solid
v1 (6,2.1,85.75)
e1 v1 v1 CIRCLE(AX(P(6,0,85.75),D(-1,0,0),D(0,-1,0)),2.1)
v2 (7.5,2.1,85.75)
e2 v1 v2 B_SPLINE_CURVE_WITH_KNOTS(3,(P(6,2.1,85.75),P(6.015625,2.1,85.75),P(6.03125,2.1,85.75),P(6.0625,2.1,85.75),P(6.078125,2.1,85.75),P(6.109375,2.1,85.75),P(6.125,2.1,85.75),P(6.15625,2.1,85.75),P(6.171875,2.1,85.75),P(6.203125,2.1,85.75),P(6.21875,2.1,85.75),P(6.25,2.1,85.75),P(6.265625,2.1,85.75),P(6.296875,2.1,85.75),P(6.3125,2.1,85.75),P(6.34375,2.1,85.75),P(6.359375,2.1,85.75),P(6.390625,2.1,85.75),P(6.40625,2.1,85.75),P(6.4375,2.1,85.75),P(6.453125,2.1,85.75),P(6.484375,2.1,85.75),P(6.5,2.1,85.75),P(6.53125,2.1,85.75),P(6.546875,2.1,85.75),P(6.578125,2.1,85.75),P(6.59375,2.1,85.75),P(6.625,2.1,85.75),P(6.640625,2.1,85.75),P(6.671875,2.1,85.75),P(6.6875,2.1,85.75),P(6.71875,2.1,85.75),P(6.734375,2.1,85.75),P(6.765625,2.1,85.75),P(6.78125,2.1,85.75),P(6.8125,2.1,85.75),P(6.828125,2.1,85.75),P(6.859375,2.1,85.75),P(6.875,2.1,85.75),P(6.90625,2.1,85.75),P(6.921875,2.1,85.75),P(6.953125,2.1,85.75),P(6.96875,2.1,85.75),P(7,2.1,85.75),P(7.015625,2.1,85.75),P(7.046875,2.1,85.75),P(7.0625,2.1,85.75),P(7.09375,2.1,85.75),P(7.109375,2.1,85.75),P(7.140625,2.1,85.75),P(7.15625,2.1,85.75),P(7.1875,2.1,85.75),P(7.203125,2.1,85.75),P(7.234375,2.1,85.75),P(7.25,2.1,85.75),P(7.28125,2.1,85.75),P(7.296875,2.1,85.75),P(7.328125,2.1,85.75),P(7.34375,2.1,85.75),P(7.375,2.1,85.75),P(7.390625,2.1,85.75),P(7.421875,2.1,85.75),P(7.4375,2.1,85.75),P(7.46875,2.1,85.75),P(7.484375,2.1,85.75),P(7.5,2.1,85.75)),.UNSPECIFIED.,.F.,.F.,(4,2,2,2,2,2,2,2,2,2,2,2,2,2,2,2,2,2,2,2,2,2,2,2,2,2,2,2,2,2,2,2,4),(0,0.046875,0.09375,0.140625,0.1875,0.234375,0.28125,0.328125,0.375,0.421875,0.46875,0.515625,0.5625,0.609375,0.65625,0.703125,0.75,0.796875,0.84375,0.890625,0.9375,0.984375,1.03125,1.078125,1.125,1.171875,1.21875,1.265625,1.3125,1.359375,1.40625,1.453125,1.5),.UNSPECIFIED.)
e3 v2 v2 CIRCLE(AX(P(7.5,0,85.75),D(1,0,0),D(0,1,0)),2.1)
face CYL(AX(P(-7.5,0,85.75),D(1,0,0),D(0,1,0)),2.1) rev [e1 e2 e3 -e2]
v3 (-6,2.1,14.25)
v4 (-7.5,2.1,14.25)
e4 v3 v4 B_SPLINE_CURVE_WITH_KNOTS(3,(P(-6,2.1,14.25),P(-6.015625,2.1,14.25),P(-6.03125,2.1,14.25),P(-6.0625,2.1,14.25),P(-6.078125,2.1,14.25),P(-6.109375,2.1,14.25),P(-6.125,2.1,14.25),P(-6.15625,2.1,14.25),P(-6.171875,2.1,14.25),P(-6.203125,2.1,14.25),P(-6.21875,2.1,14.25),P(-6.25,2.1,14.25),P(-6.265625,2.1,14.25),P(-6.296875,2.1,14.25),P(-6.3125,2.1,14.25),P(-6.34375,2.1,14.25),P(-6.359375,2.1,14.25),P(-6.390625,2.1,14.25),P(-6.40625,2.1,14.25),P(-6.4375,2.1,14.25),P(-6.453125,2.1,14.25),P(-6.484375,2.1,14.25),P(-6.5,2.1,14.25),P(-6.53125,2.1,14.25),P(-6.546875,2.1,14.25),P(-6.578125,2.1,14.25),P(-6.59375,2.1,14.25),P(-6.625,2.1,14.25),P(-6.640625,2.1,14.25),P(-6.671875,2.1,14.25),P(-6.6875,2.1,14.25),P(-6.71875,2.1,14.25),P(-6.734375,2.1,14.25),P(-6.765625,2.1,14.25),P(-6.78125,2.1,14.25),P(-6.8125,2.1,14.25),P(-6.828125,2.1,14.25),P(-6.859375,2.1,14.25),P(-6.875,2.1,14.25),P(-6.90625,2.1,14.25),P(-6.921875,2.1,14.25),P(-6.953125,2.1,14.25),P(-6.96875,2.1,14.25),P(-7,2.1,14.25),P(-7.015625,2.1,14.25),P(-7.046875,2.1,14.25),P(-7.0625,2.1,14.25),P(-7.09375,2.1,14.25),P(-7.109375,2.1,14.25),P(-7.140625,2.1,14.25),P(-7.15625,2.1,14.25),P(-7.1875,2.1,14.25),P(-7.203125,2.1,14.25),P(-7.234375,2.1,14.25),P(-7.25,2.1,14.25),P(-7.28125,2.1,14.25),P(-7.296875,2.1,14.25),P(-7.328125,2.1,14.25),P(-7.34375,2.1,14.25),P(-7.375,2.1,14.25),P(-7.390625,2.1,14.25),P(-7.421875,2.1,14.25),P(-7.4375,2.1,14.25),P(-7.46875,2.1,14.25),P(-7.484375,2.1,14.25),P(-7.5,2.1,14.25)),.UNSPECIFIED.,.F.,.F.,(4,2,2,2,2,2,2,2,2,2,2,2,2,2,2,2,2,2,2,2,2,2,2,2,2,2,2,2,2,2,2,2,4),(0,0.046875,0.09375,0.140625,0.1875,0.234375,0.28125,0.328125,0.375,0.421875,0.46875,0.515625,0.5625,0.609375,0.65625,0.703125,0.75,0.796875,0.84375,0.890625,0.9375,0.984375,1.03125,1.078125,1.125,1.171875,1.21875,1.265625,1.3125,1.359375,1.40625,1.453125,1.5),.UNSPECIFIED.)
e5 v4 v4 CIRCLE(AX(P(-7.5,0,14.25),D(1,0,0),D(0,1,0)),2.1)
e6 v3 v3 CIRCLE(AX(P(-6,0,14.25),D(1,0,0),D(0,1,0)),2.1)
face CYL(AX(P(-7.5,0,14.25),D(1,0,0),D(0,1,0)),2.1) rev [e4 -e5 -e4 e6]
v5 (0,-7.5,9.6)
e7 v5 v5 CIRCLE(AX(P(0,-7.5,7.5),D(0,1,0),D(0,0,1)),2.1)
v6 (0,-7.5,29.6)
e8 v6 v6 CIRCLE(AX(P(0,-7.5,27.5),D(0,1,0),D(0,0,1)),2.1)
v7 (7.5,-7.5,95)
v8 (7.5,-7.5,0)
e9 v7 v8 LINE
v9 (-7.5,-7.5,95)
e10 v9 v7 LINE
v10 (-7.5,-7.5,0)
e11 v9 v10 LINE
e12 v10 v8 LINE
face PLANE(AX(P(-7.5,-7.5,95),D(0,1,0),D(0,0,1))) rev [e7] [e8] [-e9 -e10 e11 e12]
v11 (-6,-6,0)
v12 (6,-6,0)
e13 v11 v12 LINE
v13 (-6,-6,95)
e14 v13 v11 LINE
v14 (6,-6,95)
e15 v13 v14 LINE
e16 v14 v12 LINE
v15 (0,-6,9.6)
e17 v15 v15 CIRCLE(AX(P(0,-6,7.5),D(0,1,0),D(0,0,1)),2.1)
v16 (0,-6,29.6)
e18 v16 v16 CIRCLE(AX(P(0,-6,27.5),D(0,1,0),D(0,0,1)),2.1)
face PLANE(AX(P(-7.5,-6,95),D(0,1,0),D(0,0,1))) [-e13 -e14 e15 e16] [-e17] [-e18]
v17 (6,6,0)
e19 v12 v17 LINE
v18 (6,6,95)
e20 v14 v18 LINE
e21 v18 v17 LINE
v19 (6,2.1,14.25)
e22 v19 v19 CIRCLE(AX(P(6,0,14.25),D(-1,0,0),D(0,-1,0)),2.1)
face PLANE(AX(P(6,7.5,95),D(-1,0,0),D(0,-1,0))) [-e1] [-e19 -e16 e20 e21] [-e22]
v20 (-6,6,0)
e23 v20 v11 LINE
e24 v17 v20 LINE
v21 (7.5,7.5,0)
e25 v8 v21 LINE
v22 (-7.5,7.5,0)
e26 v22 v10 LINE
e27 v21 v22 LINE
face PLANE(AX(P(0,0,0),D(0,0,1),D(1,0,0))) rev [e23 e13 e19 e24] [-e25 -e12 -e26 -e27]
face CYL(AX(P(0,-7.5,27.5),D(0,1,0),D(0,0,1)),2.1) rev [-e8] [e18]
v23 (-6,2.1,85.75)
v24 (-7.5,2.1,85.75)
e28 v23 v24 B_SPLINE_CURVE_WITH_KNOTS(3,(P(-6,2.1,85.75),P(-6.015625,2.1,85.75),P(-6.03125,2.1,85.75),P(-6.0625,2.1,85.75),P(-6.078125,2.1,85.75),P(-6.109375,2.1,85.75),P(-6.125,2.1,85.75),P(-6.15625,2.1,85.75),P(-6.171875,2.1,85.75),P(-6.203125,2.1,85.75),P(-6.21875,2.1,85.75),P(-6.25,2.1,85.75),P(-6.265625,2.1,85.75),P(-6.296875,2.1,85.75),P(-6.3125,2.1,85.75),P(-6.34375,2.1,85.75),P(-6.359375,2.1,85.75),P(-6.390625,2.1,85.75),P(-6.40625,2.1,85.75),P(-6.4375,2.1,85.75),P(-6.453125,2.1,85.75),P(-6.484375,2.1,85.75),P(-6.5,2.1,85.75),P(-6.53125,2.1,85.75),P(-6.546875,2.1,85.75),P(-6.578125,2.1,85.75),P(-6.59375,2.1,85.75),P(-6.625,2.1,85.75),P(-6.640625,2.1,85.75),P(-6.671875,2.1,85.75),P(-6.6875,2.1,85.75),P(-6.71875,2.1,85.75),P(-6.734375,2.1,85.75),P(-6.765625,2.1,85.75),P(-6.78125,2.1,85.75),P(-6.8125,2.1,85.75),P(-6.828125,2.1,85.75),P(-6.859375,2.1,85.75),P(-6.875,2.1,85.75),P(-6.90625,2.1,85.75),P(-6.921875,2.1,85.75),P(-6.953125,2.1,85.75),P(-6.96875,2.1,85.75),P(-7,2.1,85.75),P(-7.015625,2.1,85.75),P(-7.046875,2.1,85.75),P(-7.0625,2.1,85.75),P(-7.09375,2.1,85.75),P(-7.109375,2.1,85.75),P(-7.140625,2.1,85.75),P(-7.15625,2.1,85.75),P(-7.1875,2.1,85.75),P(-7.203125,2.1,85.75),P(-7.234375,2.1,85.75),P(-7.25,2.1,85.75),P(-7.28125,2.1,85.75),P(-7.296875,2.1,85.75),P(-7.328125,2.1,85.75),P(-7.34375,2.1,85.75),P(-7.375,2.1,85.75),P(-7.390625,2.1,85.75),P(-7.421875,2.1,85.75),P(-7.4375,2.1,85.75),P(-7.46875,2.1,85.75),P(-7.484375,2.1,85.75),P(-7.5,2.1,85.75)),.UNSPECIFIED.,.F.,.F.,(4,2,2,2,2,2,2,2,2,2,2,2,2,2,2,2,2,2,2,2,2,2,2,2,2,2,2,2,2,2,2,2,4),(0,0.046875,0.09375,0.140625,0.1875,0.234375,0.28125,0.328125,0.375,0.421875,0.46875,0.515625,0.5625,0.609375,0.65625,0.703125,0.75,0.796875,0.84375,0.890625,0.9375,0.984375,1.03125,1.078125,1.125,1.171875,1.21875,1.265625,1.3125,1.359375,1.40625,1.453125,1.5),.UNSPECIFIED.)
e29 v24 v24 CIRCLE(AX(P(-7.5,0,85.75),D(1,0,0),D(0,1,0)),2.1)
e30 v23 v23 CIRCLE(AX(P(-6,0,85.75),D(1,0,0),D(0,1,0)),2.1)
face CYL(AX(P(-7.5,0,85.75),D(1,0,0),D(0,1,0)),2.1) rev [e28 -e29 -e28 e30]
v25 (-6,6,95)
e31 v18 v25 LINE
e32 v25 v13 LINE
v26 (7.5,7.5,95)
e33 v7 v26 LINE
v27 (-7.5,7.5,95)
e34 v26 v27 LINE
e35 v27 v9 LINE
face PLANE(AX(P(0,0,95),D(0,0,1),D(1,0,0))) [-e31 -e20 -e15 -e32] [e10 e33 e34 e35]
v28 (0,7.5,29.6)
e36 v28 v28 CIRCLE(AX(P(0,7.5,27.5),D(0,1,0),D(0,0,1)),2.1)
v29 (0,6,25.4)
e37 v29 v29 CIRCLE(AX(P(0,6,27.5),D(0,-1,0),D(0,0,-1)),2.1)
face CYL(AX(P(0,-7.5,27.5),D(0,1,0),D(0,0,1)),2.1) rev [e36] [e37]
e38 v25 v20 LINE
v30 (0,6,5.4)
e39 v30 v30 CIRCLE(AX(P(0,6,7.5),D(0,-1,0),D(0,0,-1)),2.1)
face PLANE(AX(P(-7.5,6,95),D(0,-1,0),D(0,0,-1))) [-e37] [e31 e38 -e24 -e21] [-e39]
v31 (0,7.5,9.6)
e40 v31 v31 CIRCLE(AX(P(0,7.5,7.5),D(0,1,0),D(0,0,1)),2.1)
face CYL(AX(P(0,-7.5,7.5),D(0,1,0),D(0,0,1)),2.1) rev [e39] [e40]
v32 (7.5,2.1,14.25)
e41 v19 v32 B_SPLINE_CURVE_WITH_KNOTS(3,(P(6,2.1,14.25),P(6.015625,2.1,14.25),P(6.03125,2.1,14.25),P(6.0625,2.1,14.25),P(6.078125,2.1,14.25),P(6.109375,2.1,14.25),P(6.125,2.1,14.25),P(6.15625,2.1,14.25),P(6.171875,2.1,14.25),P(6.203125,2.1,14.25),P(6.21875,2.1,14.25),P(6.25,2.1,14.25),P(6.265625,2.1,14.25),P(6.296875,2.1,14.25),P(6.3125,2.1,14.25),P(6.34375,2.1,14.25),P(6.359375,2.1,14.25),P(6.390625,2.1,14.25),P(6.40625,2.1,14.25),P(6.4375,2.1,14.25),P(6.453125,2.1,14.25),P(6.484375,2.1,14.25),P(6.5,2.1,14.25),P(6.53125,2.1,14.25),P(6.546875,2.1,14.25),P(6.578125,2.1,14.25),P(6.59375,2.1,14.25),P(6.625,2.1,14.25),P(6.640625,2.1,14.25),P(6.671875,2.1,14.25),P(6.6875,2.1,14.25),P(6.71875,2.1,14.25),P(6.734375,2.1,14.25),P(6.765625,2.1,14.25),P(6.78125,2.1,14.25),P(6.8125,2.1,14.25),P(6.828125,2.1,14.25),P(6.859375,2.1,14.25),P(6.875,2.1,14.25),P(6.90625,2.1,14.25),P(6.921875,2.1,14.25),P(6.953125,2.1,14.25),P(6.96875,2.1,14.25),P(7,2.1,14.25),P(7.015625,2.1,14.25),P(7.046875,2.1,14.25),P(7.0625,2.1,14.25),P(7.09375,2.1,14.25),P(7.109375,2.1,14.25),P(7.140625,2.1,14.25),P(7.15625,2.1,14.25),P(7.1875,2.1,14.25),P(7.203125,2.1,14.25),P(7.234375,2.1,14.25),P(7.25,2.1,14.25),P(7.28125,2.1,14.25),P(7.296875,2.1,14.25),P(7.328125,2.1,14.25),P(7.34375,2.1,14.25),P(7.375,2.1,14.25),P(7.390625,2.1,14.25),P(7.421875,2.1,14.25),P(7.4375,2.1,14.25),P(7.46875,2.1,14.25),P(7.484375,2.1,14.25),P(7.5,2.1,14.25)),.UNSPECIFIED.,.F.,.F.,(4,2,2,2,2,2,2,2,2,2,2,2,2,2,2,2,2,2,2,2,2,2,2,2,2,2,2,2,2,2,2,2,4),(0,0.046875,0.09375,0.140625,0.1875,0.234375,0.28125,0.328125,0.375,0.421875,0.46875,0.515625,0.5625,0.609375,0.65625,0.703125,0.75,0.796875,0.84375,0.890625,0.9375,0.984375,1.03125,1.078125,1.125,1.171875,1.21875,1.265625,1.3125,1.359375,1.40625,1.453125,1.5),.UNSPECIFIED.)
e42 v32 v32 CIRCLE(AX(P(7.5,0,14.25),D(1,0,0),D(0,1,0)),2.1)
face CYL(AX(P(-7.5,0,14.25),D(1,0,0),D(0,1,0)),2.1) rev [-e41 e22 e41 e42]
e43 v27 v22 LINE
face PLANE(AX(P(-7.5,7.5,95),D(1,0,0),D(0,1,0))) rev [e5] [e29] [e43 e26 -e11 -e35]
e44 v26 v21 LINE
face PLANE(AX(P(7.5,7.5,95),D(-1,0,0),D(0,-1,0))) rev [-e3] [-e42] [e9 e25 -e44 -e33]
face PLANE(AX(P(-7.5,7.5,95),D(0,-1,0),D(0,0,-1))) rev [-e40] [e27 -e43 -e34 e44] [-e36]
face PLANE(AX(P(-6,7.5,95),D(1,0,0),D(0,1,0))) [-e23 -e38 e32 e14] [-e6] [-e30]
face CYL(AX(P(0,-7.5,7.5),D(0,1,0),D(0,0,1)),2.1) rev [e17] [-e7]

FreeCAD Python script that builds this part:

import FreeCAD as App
import Part
import Sketcher
Q = App.Units.Quantity

doc = App.newDocument("Part")
params = doc.addObject("Spreadsheet::Sheet", "Params")
for row, (alias, value) in enumerate([
    ("sketch1_width", "15 mm"),
    ("sketch1_width2", "12 mm"),
    ("pad1_length", "95 mm"),
    ("sketch2_diameter", "4.2 mm"),
    ("sketch3_diameter", "4.2 mm"),
], start=1):
    params.set(f"A{row}", alias)
    params.set(f"B{row}", "=" + value)
    params.setAlias(f"B{row}", alias)

body = doc.addObject("PartDesign::Body", "Body")

sketch1 = doc.addObject("Sketcher::SketchObject", "Sketch")
body.addObject(sketch1)
sketch1.AttachmentSupport = (doc.XY_Plane, [""])
sketch1.MapMode = "FlatFace"
sketch1.addGeometry(Part.LineSegment(App.Vector(-8, 8, 0), App.Vector(-8, -8, 0)), False)
sketch1.addGeometry(Part.LineSegment(App.Vector(-8, -8, 0), App.Vector(8, -8, 0)), False)
sketch1.addGeometry(Part.LineSegment(App.Vector(8, -8, 0), App.Vector(8, 8, 0)), False)
sketch1.addGeometry(Part.LineSegment(App.Vector(8, 8, 0), App.Vector(-8, 8, 0)), False)
sketch1.addGeometry(Part.LineSegment(App.Vector(6, -6, 0), App.Vector(-6, -6, 0)), False)
sketch1.addGeometry(Part.LineSegment(App.Vector(-6, -6, 0), App.Vector(-6, 6, 0)), False)
sketch1.addGeometry(Part.LineSegment(App.Vector(-6, 6, 0), App.Vector(6, 6, 0)), False)
sketch1.addGeometry(Part.LineSegment(App.Vector(6, 6, 0), App.Vector(6, -6, 0)), False)
sketch1.addConstraint(Sketcher.Constraint("Coincident", 0, 2, 1, 1))
sketch1.addConstraint(Sketcher.Constraint("Coincident", 1, 2, 2, 1))
sketch1.addConstraint(Sketcher.Constraint("Coincident", 2, 2, 3, 1))
sketch1.addConstraint(Sketcher.Constraint("Coincident", 3, 2, 0, 1))
sketch1.addConstraint(Sketcher.Constraint("Coincident", 4, 2, 5, 1))
sketch1.addConstraint(Sketcher.Constraint("Coincident", 5, 2, 6, 1))
sketch1.addConstraint(Sketcher.Constraint("Coincident", 6, 2, 7, 1))
sketch1.addConstraint(Sketcher.Constraint("Coincident", 7, 2, 4, 1))
sketch1.addConstraint(Sketcher.Constraint("Vertical", 0))
sketch1.addConstraint(Sketcher.Constraint("Horizontal", 1))
sketch1.addConstraint(Sketcher.Constraint("Vertical", 2))
sketch1.addConstraint(Sketcher.Constraint("Horizontal", 3))
sketch1.addConstraint(Sketcher.Constraint("Horizontal", 4))
sketch1.addConstraint(Sketcher.Constraint("Vertical", 5))
sketch1.addConstraint(Sketcher.Constraint("Horizontal", 6))
sketch1.addConstraint(Sketcher.Constraint("Vertical", 7))
sketch1.addConstraint(Sketcher.Constraint("Symmetric", 0, 2, 2, 2, -1, 1))
sketch1.addConstraint(Sketcher.Constraint("Symmetric", 4, 2, 6, 2, -1, 1))
sketch1.addConstraint(Sketcher.Constraint("Equal", 3, 0))
sketch1.addConstraint(Sketcher.Constraint("Equal", 6, 5))
sketch1.addConstraint(Sketcher.Constraint("DistanceX", 1, 1, 1, 2, Q("15 mm")))
sketch1.addConstraint(Sketcher.Constraint("DistanceX", 4, 2, 4, 1, Q("12 mm")))
sketch1.setExpression("Constraints[20]", "Params.sketch1_width")
sketch1.setExpression("Constraints[21]", "Params.sketch1_width2")
pad1 = doc.addObject("PartDesign::Pad", "Pad")
body.addObject(pad1)
pad1.Profile = sketch1
pad1.setExpression("Length", "Params.pad1_length")

sketch2 = doc.addObject("Sketcher::SketchObject", "Sketch001")
body.addObject(sketch2)
sketch2.AttachmentSupport = (doc.YZ_Plane, [""])
sketch2.MapMode = "FlatFace"
sketch2.AttachmentOffset = App.Placement(App.Vector(0, 0, 7.5), App.Rotation())
sketch2.addGeometry(Part.Circle(App.Vector(0, 14.2, 0), App.Vector(0, 0, 1), 2.1), False)
sketch2.addGeometry(Part.Circle(App.Vector(0, 85.8, 0), App.Vector(0, 0, 1), 2.1), False)
sketch2.addConstraint(Sketcher.Constraint("Equal", 0, 1))
sketch2.addConstraint(Sketcher.Constraint("PointOnObject", 0, 3, -2))
sketch2.addConstraint(Sketcher.Constraint("PointOnObject", 1, 3, -2))
sketch2.addConstraint(Sketcher.Constraint("Diameter", 0, Q("4.2 mm")))
sketch2.addConstraint(Sketcher.Constraint("DistanceY", 0, 3, 1, 3, Q("71.5 mm")))
sketch2.addConstraint(Sketcher.Constraint("DistanceY", -1, 1, 0, 3, Q("14.25 mm")))
sketch2.setExpression("Constraints[3]", "Params.sketch2_diameter")
pocket1 = doc.addObject("PartDesign::Pocket", "Pocket")
body.addObject(pocket1)
pocket1.Profile = sketch2
pocket1.Type = "ThroughAll"

sketch3 = doc.addObject("Sketcher::SketchObject", "Sketch002")
body.addObject(sketch3)
sketch3.AttachmentSupport = (doc.XZ_Plane, [""])
sketch3.MapMode = "FlatFace"
sketch3.AttachmentOffset = App.Placement(App.Vector(0, 0, -7.5), App.Rotation())
sketch3.addGeometry(Part.Circle(App.Vector(0, 27.5, 0), App.Vector(0, 0, 1), 2.1), False)
sketch3.addGeometry(Part.Circle(App.Vector(0, 7.5, 0), App.Vector(0, 0, 1), 2.1), False)
sketch3.addConstraint(Sketcher.Constraint("Equal", 0, 1))
sketch3.addConstraint(Sketcher.Constraint("PointOnObject", 0, 3, -2))
sketch3.addConstraint(Sketcher.Constraint("PointOnObject", 1, 3, -2))
sketch3.addConstraint(Sketcher.Constraint("Diameter", 0, Q("4.2 mm")))
sketch3.addConstraint(Sketcher.Constraint("DistanceY", 1, 3, 0, 3, Q("20 mm")))
sketch3.addConstraint(Sketcher.Constraint("DistanceY", -1, 1, 0, 3, Q("27.5 mm")))
sketch3.setExpression("Constraints[3]", "Params.sketch3_diameter")
pocket2 = doc.addObject("PartDesign::Pocket", "Pocket001")
body.addObject(pocket2)
pocket2.Profile = sketch3
pocket2.Type = "ThroughAll"
pocket2.Reversed = True

doc.recompute()
